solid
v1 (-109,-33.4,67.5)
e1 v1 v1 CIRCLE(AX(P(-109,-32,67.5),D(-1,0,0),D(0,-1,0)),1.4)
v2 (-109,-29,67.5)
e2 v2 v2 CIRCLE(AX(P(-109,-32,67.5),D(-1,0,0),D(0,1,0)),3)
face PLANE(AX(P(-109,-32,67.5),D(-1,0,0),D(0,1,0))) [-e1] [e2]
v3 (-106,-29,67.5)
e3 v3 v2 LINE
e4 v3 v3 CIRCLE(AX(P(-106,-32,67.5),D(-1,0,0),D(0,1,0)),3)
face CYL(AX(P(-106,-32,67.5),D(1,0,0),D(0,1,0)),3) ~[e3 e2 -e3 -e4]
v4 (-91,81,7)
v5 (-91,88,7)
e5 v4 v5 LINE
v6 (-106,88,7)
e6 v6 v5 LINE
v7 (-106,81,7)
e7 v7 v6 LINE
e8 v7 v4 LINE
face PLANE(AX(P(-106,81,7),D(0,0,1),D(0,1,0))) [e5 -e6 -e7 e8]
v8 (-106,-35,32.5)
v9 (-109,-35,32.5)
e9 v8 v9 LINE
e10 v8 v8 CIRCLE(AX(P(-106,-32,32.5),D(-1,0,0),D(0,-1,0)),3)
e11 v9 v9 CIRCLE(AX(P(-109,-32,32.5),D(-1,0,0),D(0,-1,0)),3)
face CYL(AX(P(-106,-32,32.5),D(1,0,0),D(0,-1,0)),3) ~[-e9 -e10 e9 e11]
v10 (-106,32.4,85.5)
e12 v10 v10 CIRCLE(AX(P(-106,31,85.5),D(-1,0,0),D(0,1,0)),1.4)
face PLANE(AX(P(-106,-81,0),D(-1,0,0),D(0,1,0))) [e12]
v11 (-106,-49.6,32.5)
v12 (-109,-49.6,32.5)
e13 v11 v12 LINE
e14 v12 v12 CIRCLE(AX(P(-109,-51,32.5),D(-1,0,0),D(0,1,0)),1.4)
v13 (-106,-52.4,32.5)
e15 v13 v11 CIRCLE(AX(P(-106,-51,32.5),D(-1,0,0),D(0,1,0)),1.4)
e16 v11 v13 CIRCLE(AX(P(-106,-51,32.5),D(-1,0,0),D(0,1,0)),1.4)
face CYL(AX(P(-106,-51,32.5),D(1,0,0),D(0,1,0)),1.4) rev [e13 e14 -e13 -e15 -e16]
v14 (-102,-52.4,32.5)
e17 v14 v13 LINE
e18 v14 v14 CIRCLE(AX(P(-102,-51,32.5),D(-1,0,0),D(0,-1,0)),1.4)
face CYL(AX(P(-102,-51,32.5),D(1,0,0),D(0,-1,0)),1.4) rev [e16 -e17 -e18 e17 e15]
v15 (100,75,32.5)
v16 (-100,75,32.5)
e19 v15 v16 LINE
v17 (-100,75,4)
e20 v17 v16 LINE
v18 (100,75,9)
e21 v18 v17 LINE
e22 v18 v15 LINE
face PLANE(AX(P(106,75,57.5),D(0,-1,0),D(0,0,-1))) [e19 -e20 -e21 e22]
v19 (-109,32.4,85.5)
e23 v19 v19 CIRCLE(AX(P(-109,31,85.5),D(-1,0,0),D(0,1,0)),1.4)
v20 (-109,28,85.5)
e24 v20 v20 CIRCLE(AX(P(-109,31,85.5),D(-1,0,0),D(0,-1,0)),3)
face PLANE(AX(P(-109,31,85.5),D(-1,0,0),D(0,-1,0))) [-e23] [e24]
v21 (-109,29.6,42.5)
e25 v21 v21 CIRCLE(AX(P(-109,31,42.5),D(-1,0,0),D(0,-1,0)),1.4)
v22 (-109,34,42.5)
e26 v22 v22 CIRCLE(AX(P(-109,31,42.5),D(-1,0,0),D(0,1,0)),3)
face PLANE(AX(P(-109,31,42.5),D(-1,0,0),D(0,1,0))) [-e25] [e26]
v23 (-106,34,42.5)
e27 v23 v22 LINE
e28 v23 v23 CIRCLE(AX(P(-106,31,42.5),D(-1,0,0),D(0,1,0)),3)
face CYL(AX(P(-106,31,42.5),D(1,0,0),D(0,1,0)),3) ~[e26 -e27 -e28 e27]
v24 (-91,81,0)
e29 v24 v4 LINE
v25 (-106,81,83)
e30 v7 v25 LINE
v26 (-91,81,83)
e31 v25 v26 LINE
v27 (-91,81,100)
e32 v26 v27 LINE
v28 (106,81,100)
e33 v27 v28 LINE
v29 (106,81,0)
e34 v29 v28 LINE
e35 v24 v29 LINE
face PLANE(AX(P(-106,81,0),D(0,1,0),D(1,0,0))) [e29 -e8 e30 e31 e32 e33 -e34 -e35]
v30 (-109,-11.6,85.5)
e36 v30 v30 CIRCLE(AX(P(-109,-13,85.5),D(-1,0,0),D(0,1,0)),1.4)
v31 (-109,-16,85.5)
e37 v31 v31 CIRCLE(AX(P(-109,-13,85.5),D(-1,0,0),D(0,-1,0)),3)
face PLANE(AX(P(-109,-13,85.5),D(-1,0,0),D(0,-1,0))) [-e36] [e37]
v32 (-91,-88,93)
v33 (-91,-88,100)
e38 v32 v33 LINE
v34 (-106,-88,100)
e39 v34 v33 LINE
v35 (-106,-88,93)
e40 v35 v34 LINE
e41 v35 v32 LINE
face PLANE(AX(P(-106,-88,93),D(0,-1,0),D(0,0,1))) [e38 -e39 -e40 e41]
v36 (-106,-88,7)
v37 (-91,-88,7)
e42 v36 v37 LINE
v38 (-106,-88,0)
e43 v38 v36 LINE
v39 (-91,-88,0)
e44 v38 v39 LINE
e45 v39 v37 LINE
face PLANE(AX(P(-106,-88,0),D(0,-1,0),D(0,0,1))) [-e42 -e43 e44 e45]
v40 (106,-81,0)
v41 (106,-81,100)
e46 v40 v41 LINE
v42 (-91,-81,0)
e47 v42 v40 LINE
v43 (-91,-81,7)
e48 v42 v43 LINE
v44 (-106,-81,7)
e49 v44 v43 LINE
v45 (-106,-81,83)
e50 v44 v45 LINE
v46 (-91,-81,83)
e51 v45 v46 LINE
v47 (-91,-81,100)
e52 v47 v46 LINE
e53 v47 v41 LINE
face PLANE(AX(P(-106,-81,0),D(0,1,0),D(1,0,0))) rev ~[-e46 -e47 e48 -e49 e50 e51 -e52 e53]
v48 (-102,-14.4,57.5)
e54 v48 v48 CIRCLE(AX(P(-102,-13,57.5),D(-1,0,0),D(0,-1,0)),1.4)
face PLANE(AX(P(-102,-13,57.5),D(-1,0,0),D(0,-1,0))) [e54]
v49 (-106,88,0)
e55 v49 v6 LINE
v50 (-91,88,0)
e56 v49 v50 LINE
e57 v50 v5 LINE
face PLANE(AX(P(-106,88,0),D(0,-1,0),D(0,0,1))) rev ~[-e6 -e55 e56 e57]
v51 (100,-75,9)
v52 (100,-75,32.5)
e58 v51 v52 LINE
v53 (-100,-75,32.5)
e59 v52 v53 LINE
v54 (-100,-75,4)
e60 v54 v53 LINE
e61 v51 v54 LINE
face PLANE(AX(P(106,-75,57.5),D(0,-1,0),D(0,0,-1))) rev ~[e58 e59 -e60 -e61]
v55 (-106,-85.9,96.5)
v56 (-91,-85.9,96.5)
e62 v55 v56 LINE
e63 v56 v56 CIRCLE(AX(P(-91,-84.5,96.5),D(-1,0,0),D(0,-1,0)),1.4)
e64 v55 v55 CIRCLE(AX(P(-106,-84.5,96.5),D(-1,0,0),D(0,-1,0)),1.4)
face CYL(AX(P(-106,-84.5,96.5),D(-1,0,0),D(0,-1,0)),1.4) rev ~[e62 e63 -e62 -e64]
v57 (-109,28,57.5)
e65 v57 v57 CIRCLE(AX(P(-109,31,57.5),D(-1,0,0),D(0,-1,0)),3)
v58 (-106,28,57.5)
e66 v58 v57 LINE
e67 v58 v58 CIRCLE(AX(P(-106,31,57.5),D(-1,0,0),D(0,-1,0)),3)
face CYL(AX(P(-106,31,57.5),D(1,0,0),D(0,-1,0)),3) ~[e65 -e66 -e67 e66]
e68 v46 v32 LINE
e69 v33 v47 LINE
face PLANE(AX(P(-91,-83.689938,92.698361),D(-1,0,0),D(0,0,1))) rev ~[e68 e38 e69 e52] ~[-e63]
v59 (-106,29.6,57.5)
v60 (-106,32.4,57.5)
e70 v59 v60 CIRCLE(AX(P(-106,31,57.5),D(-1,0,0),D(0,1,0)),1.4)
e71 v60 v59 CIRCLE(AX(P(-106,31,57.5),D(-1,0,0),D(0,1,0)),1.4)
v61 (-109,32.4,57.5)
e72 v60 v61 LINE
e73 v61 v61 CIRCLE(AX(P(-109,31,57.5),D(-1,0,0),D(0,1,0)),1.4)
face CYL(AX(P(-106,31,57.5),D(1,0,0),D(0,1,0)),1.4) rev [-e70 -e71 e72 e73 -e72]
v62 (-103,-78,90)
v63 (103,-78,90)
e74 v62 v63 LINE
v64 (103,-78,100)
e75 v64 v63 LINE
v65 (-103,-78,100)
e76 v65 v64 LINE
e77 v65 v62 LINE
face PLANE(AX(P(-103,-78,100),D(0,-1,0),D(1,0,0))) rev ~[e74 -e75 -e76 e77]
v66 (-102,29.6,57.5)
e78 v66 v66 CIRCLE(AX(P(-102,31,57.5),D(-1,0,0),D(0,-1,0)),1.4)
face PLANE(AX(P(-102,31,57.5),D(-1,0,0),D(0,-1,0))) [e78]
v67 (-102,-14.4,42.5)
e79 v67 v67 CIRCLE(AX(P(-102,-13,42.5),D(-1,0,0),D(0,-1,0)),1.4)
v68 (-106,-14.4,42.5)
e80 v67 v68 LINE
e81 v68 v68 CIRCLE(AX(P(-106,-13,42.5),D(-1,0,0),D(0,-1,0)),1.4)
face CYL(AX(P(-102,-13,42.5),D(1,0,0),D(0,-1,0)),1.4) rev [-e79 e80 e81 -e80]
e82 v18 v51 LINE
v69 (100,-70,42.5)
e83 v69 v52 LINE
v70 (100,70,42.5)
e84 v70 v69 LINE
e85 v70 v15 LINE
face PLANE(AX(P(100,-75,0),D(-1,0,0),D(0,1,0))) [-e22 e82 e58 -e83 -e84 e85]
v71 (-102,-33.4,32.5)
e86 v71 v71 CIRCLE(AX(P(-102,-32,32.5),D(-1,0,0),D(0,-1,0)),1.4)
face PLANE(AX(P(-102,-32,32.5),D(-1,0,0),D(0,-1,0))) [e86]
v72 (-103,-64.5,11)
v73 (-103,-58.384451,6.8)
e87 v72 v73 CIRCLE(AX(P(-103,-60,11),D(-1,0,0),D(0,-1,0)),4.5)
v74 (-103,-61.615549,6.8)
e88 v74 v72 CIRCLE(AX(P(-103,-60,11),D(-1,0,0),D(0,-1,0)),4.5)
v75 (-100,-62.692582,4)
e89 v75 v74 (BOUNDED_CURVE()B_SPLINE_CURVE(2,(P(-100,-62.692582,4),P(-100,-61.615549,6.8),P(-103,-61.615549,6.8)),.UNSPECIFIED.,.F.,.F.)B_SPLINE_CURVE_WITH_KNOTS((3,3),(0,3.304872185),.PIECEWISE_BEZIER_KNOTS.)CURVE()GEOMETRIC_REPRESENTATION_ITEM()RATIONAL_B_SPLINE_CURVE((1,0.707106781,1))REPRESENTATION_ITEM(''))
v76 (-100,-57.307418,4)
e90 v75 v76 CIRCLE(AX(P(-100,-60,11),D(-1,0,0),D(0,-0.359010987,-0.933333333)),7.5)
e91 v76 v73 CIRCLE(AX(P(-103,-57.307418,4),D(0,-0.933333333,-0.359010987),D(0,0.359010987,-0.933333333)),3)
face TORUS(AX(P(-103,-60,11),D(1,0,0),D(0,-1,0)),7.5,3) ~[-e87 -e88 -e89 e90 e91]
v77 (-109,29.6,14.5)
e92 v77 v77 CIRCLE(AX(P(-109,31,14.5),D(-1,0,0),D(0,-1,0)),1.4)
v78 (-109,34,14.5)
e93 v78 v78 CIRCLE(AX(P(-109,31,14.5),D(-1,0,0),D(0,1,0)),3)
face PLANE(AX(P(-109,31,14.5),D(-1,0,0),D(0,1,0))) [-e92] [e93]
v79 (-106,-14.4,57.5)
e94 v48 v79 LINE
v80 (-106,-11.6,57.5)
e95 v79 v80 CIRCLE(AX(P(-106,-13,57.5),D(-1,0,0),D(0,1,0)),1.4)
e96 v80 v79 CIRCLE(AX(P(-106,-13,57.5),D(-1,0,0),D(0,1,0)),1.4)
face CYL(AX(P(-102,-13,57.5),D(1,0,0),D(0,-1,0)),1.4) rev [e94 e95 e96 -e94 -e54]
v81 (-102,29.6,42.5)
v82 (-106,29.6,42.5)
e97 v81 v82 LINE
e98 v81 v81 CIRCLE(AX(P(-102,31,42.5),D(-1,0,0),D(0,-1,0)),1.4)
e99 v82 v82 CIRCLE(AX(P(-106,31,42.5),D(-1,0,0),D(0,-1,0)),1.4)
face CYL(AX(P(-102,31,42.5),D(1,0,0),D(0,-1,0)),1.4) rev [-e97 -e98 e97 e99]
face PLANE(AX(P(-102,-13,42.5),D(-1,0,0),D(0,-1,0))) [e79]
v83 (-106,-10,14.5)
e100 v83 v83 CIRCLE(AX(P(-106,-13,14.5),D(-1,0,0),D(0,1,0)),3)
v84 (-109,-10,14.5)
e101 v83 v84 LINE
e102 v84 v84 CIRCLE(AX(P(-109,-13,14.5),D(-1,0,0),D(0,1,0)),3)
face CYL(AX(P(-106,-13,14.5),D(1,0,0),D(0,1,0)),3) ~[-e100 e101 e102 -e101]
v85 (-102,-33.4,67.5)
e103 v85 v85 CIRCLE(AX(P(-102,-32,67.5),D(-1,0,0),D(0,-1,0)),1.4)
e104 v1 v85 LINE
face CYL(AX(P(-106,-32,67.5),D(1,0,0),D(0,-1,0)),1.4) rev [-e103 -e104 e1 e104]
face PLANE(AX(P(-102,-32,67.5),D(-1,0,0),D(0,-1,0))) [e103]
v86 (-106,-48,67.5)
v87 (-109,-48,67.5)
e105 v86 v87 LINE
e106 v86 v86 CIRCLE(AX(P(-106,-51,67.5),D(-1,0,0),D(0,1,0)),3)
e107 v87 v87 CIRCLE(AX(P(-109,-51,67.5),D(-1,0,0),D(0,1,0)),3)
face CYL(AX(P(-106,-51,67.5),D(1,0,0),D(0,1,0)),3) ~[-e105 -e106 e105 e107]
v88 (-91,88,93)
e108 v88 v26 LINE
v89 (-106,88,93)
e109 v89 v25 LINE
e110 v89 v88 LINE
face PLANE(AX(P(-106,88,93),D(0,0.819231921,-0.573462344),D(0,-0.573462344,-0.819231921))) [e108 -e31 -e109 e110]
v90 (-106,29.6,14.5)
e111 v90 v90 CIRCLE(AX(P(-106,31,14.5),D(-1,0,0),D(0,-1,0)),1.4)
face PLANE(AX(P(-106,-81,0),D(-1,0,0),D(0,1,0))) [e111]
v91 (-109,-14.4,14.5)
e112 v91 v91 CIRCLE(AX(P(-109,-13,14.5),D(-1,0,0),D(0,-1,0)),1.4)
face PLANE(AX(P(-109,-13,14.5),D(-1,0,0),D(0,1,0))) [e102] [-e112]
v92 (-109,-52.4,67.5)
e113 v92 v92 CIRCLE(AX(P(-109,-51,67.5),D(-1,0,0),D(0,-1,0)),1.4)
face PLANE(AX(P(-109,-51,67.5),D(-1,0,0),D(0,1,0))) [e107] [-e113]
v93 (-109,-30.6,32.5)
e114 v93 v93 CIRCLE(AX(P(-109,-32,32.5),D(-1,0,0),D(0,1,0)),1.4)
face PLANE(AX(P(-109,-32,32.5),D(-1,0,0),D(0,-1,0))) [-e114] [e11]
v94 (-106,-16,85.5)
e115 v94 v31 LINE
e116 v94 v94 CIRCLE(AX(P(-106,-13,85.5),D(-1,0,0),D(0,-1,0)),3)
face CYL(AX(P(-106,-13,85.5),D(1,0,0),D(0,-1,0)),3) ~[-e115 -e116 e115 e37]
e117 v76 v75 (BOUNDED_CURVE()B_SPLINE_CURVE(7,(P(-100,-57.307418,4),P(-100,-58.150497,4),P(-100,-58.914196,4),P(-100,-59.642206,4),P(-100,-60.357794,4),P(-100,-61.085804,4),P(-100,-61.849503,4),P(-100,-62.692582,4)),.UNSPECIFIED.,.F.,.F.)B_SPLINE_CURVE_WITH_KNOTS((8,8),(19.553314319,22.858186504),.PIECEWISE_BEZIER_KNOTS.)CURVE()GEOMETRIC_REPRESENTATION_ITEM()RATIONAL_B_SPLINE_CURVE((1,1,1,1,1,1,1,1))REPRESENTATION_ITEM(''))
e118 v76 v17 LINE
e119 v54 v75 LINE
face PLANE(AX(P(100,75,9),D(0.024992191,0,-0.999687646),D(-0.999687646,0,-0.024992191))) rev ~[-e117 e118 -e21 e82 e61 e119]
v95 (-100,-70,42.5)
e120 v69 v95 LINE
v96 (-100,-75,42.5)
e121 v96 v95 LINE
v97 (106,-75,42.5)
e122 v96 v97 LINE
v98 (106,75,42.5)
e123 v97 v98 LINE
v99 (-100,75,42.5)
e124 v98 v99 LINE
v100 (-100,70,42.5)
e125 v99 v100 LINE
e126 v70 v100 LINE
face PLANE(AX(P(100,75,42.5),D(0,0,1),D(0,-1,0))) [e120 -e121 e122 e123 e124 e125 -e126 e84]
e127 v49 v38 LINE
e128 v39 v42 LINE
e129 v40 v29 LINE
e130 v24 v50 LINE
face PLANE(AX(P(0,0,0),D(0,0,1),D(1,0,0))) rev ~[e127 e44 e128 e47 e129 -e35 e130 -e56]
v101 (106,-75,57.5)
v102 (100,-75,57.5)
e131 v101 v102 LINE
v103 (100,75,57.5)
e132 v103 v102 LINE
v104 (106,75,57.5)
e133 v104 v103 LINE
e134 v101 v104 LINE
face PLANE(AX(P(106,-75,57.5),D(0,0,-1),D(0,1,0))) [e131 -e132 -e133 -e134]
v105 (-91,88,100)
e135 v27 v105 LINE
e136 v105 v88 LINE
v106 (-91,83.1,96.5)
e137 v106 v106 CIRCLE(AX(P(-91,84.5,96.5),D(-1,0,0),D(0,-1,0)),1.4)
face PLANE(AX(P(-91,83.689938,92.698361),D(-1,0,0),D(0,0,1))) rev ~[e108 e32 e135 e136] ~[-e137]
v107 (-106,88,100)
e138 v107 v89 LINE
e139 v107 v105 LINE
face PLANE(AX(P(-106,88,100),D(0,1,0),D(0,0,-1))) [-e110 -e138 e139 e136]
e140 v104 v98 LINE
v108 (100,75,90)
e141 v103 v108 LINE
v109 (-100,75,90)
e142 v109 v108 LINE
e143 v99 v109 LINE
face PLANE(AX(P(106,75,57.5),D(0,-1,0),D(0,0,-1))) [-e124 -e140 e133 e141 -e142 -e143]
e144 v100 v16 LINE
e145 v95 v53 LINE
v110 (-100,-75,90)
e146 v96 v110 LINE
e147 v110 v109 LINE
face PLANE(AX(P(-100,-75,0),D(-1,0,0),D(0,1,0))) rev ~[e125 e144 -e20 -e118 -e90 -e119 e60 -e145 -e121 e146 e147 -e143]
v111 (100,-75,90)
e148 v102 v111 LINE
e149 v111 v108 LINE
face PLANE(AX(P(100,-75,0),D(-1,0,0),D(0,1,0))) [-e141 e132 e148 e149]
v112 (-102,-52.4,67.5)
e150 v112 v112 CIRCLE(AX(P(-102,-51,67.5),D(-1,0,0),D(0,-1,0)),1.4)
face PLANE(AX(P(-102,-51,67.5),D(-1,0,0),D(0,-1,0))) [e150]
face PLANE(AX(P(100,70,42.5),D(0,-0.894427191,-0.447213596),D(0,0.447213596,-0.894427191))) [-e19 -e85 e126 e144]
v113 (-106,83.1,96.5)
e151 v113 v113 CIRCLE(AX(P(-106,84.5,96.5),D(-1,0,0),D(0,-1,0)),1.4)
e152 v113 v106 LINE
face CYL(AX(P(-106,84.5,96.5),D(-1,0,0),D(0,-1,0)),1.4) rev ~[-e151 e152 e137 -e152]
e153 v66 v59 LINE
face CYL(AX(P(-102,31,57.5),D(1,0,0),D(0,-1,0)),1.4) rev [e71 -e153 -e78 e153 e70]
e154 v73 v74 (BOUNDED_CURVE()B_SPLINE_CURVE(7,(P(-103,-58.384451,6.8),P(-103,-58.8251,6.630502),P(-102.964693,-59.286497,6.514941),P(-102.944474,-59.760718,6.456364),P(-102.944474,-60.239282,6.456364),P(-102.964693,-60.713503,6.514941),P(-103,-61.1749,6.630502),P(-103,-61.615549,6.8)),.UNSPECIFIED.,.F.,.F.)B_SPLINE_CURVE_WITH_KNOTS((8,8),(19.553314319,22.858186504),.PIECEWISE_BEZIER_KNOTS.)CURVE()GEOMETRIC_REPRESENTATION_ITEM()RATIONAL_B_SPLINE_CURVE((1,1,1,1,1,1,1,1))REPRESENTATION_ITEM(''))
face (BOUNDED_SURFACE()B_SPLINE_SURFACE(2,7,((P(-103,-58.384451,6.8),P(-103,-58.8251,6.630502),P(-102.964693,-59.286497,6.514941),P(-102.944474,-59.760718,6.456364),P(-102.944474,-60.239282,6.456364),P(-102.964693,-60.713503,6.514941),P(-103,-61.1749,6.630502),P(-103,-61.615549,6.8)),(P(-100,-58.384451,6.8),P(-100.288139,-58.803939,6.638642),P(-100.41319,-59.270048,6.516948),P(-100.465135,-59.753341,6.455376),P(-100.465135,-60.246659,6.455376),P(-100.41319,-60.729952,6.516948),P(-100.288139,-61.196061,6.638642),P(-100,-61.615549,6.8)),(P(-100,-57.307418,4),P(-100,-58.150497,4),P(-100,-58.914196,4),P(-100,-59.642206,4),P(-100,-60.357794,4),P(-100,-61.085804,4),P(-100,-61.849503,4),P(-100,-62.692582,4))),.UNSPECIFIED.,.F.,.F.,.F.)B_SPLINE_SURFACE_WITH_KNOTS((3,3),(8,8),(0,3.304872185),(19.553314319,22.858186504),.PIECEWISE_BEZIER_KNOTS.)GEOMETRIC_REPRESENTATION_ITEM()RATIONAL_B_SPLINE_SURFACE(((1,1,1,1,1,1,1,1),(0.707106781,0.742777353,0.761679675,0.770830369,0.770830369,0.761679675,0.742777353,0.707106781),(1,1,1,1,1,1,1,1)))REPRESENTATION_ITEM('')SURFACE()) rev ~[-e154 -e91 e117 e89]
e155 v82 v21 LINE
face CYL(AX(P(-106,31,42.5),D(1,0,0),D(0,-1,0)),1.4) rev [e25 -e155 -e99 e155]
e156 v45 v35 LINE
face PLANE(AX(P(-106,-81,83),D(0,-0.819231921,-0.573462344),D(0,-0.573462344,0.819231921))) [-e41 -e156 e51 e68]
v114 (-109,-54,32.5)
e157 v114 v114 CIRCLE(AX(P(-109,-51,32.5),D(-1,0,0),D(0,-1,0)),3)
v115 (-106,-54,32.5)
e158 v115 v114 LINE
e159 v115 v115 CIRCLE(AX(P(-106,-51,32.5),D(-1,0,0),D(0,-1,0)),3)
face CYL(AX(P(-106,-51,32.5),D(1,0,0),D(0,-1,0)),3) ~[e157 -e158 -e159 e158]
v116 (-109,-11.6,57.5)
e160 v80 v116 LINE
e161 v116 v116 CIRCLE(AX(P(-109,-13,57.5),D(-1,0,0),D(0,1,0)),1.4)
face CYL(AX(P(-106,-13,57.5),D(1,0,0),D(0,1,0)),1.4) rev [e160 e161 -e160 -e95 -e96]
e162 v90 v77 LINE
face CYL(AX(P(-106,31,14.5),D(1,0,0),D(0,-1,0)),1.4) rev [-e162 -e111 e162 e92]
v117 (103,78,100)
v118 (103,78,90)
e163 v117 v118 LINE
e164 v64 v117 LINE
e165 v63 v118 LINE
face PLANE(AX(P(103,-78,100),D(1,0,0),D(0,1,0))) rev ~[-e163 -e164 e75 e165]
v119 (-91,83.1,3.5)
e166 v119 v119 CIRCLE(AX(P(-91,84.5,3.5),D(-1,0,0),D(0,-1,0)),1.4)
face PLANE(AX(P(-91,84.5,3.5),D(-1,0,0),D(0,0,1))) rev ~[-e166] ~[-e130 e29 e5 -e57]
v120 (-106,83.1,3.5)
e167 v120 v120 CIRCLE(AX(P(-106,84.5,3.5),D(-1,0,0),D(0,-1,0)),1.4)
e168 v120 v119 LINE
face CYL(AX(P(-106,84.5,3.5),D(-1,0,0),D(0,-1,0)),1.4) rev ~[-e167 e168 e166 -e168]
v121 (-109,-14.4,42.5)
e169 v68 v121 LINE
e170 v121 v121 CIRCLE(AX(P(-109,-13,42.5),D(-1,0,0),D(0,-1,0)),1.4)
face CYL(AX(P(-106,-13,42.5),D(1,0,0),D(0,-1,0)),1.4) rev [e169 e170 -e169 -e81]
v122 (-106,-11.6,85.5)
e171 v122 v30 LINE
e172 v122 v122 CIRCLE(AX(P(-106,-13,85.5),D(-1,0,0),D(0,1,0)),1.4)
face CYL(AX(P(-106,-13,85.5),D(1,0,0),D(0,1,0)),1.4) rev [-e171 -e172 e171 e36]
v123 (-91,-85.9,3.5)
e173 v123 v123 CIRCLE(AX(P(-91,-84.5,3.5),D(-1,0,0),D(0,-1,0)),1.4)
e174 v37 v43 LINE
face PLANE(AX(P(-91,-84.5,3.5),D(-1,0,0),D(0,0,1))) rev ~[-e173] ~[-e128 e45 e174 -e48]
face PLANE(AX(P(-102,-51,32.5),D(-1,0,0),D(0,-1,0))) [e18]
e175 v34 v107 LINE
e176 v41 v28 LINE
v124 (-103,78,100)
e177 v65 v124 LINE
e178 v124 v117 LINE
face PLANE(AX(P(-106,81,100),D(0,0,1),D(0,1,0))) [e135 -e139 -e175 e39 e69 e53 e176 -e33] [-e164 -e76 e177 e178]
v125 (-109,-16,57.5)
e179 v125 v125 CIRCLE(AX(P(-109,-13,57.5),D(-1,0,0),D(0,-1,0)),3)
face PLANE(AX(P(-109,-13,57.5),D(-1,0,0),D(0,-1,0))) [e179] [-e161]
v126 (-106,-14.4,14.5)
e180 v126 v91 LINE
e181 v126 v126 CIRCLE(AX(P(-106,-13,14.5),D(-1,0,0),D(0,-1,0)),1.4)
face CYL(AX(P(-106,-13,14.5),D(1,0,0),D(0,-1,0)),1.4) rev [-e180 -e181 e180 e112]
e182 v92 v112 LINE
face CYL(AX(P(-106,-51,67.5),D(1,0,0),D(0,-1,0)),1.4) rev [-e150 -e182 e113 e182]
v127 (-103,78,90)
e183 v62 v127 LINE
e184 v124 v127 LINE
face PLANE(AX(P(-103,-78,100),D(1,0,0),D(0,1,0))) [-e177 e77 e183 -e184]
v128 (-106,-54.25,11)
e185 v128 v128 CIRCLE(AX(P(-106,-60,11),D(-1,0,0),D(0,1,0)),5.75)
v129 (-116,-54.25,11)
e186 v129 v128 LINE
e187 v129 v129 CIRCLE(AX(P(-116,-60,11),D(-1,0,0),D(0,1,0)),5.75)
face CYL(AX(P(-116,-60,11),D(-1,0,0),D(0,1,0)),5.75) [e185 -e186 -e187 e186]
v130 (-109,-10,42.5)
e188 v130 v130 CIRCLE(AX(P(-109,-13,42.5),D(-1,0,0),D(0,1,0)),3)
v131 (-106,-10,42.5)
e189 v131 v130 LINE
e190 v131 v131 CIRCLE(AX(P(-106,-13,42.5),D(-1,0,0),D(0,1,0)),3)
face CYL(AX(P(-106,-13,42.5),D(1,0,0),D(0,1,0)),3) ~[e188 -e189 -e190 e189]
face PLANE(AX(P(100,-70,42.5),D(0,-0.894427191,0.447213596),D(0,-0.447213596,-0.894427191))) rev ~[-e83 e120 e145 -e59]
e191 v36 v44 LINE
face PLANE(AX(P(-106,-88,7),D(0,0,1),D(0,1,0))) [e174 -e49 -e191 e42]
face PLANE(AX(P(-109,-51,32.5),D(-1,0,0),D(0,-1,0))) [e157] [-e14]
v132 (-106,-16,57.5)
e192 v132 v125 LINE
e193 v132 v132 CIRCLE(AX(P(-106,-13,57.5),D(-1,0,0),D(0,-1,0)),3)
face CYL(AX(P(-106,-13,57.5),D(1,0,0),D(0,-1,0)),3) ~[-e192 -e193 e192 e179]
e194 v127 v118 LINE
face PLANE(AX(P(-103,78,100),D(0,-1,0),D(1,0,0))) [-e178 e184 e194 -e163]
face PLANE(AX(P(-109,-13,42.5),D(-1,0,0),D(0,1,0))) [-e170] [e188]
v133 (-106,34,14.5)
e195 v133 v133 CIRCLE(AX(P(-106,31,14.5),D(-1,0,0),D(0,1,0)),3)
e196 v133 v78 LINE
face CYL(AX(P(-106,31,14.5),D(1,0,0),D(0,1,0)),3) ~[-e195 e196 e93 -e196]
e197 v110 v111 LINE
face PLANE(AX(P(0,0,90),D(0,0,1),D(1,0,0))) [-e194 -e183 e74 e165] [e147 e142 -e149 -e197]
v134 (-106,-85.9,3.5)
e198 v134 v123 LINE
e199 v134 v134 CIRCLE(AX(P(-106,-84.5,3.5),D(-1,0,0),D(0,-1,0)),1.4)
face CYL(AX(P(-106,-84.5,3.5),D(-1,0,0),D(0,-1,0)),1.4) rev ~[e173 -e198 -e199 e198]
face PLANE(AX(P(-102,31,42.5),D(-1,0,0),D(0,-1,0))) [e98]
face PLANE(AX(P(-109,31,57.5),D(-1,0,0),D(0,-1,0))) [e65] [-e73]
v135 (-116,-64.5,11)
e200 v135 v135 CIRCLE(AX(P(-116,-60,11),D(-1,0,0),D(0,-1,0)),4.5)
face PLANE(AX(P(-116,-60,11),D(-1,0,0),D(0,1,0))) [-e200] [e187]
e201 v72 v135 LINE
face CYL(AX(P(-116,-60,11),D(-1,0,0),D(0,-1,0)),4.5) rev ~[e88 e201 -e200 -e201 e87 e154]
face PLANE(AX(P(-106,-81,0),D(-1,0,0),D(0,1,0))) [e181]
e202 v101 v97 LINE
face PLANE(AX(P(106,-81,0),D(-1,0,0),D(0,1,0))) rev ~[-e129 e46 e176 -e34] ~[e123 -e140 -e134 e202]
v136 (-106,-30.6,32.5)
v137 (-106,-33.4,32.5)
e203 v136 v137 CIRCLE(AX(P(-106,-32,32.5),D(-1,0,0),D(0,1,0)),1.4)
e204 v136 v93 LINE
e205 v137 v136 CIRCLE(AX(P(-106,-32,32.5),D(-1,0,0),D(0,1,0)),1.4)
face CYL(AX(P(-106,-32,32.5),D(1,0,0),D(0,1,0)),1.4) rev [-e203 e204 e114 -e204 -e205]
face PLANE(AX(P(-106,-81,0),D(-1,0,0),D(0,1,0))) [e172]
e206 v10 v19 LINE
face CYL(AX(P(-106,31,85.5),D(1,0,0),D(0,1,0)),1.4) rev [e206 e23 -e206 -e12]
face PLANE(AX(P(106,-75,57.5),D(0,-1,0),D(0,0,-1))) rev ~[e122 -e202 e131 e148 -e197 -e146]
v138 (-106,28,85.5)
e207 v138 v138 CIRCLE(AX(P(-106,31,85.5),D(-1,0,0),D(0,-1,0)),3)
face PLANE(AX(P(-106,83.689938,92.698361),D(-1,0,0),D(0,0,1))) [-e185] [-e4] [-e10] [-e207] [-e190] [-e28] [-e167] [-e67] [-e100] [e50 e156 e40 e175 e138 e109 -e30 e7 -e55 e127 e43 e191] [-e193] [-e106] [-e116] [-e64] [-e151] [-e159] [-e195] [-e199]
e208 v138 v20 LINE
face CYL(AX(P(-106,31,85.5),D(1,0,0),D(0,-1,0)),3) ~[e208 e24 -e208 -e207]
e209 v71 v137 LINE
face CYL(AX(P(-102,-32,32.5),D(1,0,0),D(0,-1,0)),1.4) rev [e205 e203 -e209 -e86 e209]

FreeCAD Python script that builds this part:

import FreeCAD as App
import Part
import Sketcher
Q = App.Units.Quantity


def edges_at(feature, points):
    """Names of the edges that pass closest to the given points."""
    edges = feature.Shape.Edges
    near = lambda p: min(range(len(edges)), key=lambda i: edges[i].distToShape(Part.Vertex(*p))[0])
    return sorted({f"Edge{near(p) + 1}" for p in points})

doc = App.newDocument("Part")
body = doc.addObject("PartDesign::Body", "Body")

# Sketch on XY plane
sketch1 = body.newObject("Sketcher::SketchObject", "Sketch")
sketch1.AttachmentSupport = (doc.getObject("XY_Plane"), [""])
sketch1.MapMode = "FlatFace"
sketch1.addGeometry([
    Part.LineSegment(App.Vector(-106, 81, 0), App.Vector(-106, -81, 0)),  # 0
    Part.LineSegment(App.Vector(-106, -81, 0), App.Vector(106, -81, 0)),  # 1
    Part.LineSegment(App.Vector(106, -81, 0), App.Vector(106, 81, 0)),  # 2
    Part.LineSegment(App.Vector(106, 81, 0), App.Vector(-106, 81, 0)),  # 3
    Part.LineSegment(App.Vector(100, -75, 0), App.Vector(-100, -75, 0)),  # 4
    Part.LineSegment(App.Vector(-100, -75, 0), App.Vector(-100, 75, 0)),  # 5
    Part.LineSegment(App.Vector(-100, 75, 0), App.Vector(100, 75, 0)),  # 6
    Part.LineSegment(App.Vector(100, 75, 0), App.Vector(100, -75, 0)),  # 7
], False)
sketch1.addConstraint([
    Sketcher.Constraint("Coincident", 0, 2, 1, 1),
    Sketcher.Constraint("Coincident", 1, 2, 2, 1),
    Sketcher.Constraint("Coincident", 2, 2, 3, 1),
    Sketcher.Constraint("Coincident", 3, 2, 0, 1),
    Sketcher.Constraint("Coincident", 4, 2, 5, 1),
    Sketcher.Constraint("Coincident", 5, 2, 6, 1),
    Sketcher.Constraint("Coincident", 6, 2, 7, 1),
    Sketcher.Constraint("Coincident", 7, 2, 4, 1),
    Sketcher.Constraint("Vertical", 0),
    Sketcher.Constraint("Horizontal", 1),
    Sketcher.Constraint("Vertical", 2),
    Sketcher.Constraint("Horizontal", 3),
    Sketcher.Constraint("Horizontal", 4),
    Sketcher.Constraint("Vertical", 5),
    Sketcher.Constraint("Horizontal", 6),
    Sketcher.Constraint("Vertical", 7),
    Sketcher.Constraint("Symmetric", 0, 2, 2, 2, -1, 1),
    Sketcher.Constraint("Symmetric", 4, 2, 6, 2, -1, 1),
    Sketcher.Constraint("DistanceX", 1, 1, 1, 2, Q("212 mm")),
    Sketcher.Constraint("DistanceX", 4, 2, 4, 1, Q("200 mm")),
    Sketcher.Constraint("DistanceY", 0, 2, 0, 1, Q("162 mm")),
    Sketcher.Constraint("DistanceY", 5, 1, 5, 2, Q("150 mm")),
])
pad1 = body.newObject("PartDesign::Pad", "Pad")
pad1.Profile = sketch1
pad1.Length = 100

# Sketch on XY plane
sketch2 = body.newObject("Sketcher::SketchObject", "Sketch001")
sketch2.AttachmentSupport = (doc.getObject("XY_Plane"), [""])
sketch2.MapMode = "FlatFace"
sketch2.addGeometry([
    Part.LineSegment(App.Vector(-100, 75, 0), App.Vector(-100, -75, 0)),
    Part.LineSegment(App.Vector(-100, -75, 0), App.Vector(100, -75, 0)),
    Part.LineSegment(App.Vector(100, -75, 0), App.Vector(100, 75, 0)),
    Part.LineSegment(App.Vector(100, 75, 0), App.Vector(-100, 75, 0)),
], False)
sketch2.addConstraint([
    Sketcher.Constraint("Coincident", 0, 2, 1, 1),
    Sketcher.Constraint("Coincident", 1, 2, 2, 1),
    Sketcher.Constraint("Coincident", 2, 2, 3, 1),
    Sketcher.Constraint("Coincident", 3, 2, 0, 1),
    Sketcher.Constraint("Vertical", 0),
    Sketcher.Constraint("Horizontal", 1),
    Sketcher.Constraint("Vertical", 2),
    Sketcher.Constraint("Horizontal", 3),
    Sketcher.Constraint("Symmetric", 0, 2, 2, 2, -1, 1),
    Sketcher.Constraint("DistanceX", 1, 1, 1, 2, Q("200 mm")),
    Sketcher.Constraint("DistanceY", 0, 2, 0, 1, Q("150 mm")),
])
pad2 = body.newObject("PartDesign::Pad", "Pad001")
pad2.Profile = sketch2
pad2.Length = 4

# Sketch on XY plane
sketch3 = body.newObject("Sketcher::SketchObject", "Sketch002")
sketch3.AttachmentSupport = (doc.getObject("XY_Plane"), [""])
sketch3.MapMode = "FlatFace"
sketch3.AttachmentOffset = App.Placement(App.Vector(0, 0, 100), App.Rotation())
sketch3.addGeometry([
    Part.LineSegment(App.Vector(-103, 78, 0), App.Vector(-103, -78, 0)),  # 0
    Part.LineSegment(App.Vector(-103, -78, 0), App.Vector(103, -78, 0)),  # 1
    Part.LineSegment(App.Vector(103, -78, 0), App.Vector(103, 78, 0)),  # 2
    Part.LineSegment(App.Vector(103, 78, 0), App.Vector(-103, 78, 0)),  # 3
    Part.LineSegment(App.Vector(100, -75, 0), App.Vector(-100, -75, 0)),  # 4
    Part.LineSegment(App.Vector(-100, -75, 0), App.Vector(-100, 75, 0)),  # 5
    Part.LineSegment(App.Vector(-100, 75, 0), App.Vector(100, 75, 0)),  # 6
    Part.LineSegment(App.Vector(100, 75, 0), App.Vector(100, -75, 0)),  # 7
], False)
sketch3.addConstraint([
    Sketcher.Constraint("Coincident", 0, 2, 1, 1),
    Sketcher.Constraint("Coincident", 1, 2, 2, 1),
    Sketcher.Constraint("Coincident", 2, 2, 3, 1),
    Sketcher.Constraint("Coincident", 3, 2, 0, 1),
    Sketcher.Constraint("Coincident", 4, 2, 5, 1),
    Sketcher.Constraint("Coincident", 5, 2, 6, 1),
    Sketcher.Constraint("Coincident", 6, 2, 7, 1),
    Sketcher.Constraint("Coincident", 7, 2, 4, 1),
    Sketcher.Constraint("Vertical", 0),
    Sketcher.Constraint("Horizontal", 1),
    Sketcher.Constraint("Vertical", 2),
    Sketcher.Constraint("Horizontal", 3),
    Sketcher.Constraint("Horizontal", 4),
    Sketcher.Constraint("Vertical", 5),
    Sketcher.Constraint("Horizontal", 6),
    Sketcher.Constraint("Vertical", 7),
    Sketcher.Constraint("Symmetric", 0, 2, 2, 2, -1, 1),
    Sketcher.Constraint("Symmetric", 4, 2, 6, 2, -1, 1),
    Sketcher.Constraint("DistanceX", 1, 1, 1, 2, Q("206 mm")),
    Sketcher.Constraint("DistanceX", 4, 2, 4, 1, Q("200 mm")),
    Sketcher.Constraint("DistanceY", 0, 2, 0, 1, Q("156 mm")),
    Sketcher.Constraint("DistanceY", 5, 1, 5, 2, Q("150 mm")),
])
pocket1 = body.newObject("PartDesign::Pocket", "Pocket")
pocket1.Profile = sketch3
pocket1.Length = 10

# Sketch on YZ plane
sketch4 = body.newObject("Sketcher::SketchObject", "Sketch003")
sketch4.AttachmentSupport = (doc.getObject("YZ_Plane"), [""])
sketch4.MapMode = "FlatFace"
sketch4.AttachmentOffset = App.Placement(App.Vector(0, 0, 106), App.Rotation())
sketch4.addGeometry([
    Part.LineSegment(App.Vector(75, 58, 0), App.Vector(-75, 58, 0)),
    Part.LineSegment(App.Vector(-75, 58, 0), App.Vector(-75, 42, 0)),
    Part.LineSegment(App.Vector(-75, 42, 0), App.Vector(75, 42, 0)),
    Part.LineSegment(App.Vector(75, 42, 0), App.Vector(75, 58, 0)),
], False)
sketch4.addConstraint([
    Sketcher.Constraint("Coincident", 0, 2, 1, 1),
    Sketcher.Constraint("Coincident", 1, 2, 2, 1),
    Sketcher.Constraint("Coincident", 2, 2, 3, 1),
    Sketcher.Constraint("Coincident", 3, 2, 0, 1),
    Sketcher.Constraint("Horizontal", 0),
    Sketcher.Constraint("Vertical", 1),
    Sketcher.Constraint("Horizontal", 2),
    Sketcher.Constraint("Vertical", 3),
    Sketcher.Constraint("DistanceX", 0, 2, 0, 1, Q("150 mm")),
    Sketcher.Constraint("DistanceY", 1, 2, 1, 1, Q("15 mm")),
    Sketcher.Constraint("DistanceX", 0, 2, -1, 1, Q("75 mm")),
    Sketcher.Constraint("DistanceY", -1, 1, 0, 2, Q("57.5 mm")),
])
pocket2 = body.newObject("PartDesign::Pocket", "Pocket001")
pocket2.Profile = sketch4
pocket2.Length = 200

# Sketch on YZ plane
sketch5 = body.newObject("Sketcher::SketchObject", "Sketch004")
sketch5.AttachmentSupport = (doc.getObject("YZ_Plane"), [""])
sketch5.MapMode = "FlatFace"
sketch5.AttachmentOffset = App.Placement(App.Vector(0, 0, 100), App.Rotation())
sketch5.addGeometry([
    Part.LineSegment(App.Vector(70, 42, 0), App.Vector(75, 42, 0)),  # 0
    Part.LineSegment(App.Vector(75, 42, 0), App.Vector(75, 32, 0)),  # 1
    Part.LineSegment(App.Vector(75, 32, 0), App.Vector(70, 42, 0)),  # 2
    Part.LineSegment(App.Vector(-75, 32, 0), App.Vector(-75, 42, 0)),  # 3
    Part.LineSegment(App.Vector(-75, 42, 0), App.Vector(-70, 42, 0)),  # 4
    Part.LineSegment(App.Vector(-70, 42, 0), App.Vector(-75, 32, 0)),  # 5
], False)
sketch5.addConstraint([
    Sketcher.Constraint("Coincident", 0, 2, 1, 1),
    Sketcher.Constraint("Coincident", 1, 2, 2, 1),
    Sketcher.Constraint("Coincident", 2, 2, 0, 1),
    Sketcher.Constraint("Coincident", 3, 2, 4, 1),
    Sketcher.Constraint("Coincident", 4, 2, 5, 1),
    Sketcher.Constraint("Coincident", 5, 2, 3, 1),
    Sketcher.Constraint("Horizontal", 0),
    Sketcher.Constraint("Vertical", 1),
    Sketcher.Constraint("Vertical", 3),
    Sketcher.Constraint("Horizontal", 4),
    Sketcher.Constraint("Symmetric", 0, 2, 3, 2, -2),
    Sketcher.Constraint("Horizontal", 1, 2, 5, 2),
    Sketcher.Constraint("Equal", 0, 4),
    Sketcher.Constraint("DistanceX", 0, 1, 0, 2, Q("5 mm")),
    Sketcher.Constraint("DistanceY", 1, 2, 1, 1, Q("10 mm")),
    Sketcher.Constraint("DistanceX", -1, 1, 0, 2, Q("75 mm")),
    Sketcher.Constraint("DistanceY", -1, 1, 0, 2, Q("42.5 mm")),
])
pad3 = body.newObject("PartDesign::Pad", "Pad002")
pad3.Profile = sketch5
pad3.Length = 200
pad3.Reversed = True

# Sketch on XZ plane
sketch6 = body.newObject("Sketcher::SketchObject", "Sketch005")
sketch6.AttachmentSupport = (doc.getObject("XZ_Plane"), [""])
sketch6.MapMode = "FlatFace"
sketch6.AttachmentOffset = App.Placement(App.Vector(0, 0, -75), App.Rotation())
sketch6.addGeometry([
    Part.LineSegment(App.Vector(100, 9, 0), App.Vector(-100, 4, 0)),
    Part.LineSegment(App.Vector(-100, 4, 0), App.Vector(100, 4, 0)),
    Part.LineSegment(App.Vector(100, 4, 0), App.Vector(100, 9, 0)),
], False)
sketch6.addConstraint([
    Sketcher.Constraint("Coincident", 0, 2, 1, 1),
    Sketcher.Constraint("Coincident", 1, 2, 2, 1),
    Sketcher.Constraint("Coincident", 2, 2, 0, 1),
    Sketcher.Constraint("Horizontal", 1),
    Sketcher.Constraint("Vertical", 2),
    Sketcher.Constraint("DistanceX", 1, 1, 1, 2, Q("200 mm")),
    Sketcher.Constraint("DistanceY", 2, 1, 2, 2, Q("5 mm")),
    Sketcher.Constraint("DistanceX", 0, 2, -1, 1, Q("100 mm")),
    Sketcher.Constraint("DistanceY", -1, 1, 0, 2, Q("4 mm")),
])
pad4 = body.newObject("PartDesign::Pad", "Pad003")
pad4.Profile = sketch6
pad4.Length = 150

# Sketch on YZ plane
sketch7 = body.newObject("Sketcher::SketchObject", "Sketch006")
sketch7.AttachmentSupport = (doc.getObject("YZ_Plane"), [""])
sketch7.MapMode = "FlatFace"
sketch7.AttachmentOffset = App.Placement(App.Vector(0, 0, -106), App.Rotation())
sketch7.addGeometry([
    Part.Circle(App.Vector(31, 57.5, 0), App.Vector(0, 0, 1), 3),  # 0
    Part.Circle(App.Vector(31, 57.5, 0), App.Vector(0, 0, 1), 1.4),  # 1
    Part.Circle(App.Vector(31, 42.5, 0), App.Vector(0, 0, 1), 3),  # 2
    Part.Circle(App.Vector(31, 42.5, 0), App.Vector(0, 0, 1), 1.4),  # 3
    Part.Circle(App.Vector(-13, 57.5, 0), App.Vector(0, 0, 1), 3),  # 4
    Part.Circle(App.Vector(-13, 57.5, 0), App.Vector(0, 0, 1), 1.4),  # 5
    Part.Circle(App.Vector(-13, 42.5, 0), App.Vector(0, 0, 1), 3),  # 6
    Part.Circle(App.Vector(-13, 42.5, 0), App.Vector(0, 0, 1), 1.4),  # 7
    Part.Circle(App.Vector(-32, 67.5, 0), App.Vector(0, 0, 1), 3),  # 8
    Part.Circle(App.Vector(-32, 67.5, 0), App.Vector(0, 0, 1), 1.4),  # 9
    Part.Circle(App.Vector(-51, 67.5, 0), App.Vector(0, 0, 1), 3),  # 10
    Part.Circle(App.Vector(-51, 67.5, 0), App.Vector(0, 0, 1), 1.4),  # 11
    Part.Circle(App.Vector(-51, 32.5, 0), App.Vector(0, 0, 1), 3),  # 12
    Part.Circle(App.Vector(-51, 32.5, 0), App.Vector(0, 0, 1), 1.4),  # 13
    Part.Circle(App.Vector(-32, 32.5, 0), App.Vector(0, 0, 1), 3),  # 14
    Part.Circle(App.Vector(-32, 32.5, 0), App.Vector(0, 0, 1), 1.4),  # 15
    Part.Circle(App.Vector(31, 14.5, 0), App.Vector(0, 0, 1), 3),  # 16
    Part.Circle(App.Vector(31, 14.5, 0), App.Vector(0, 0, 1), 1.4),  # 17
    Part.Circle(App.Vector(-13, 14.5, 0), App.Vector(0, 0, 1), 3),  # 18
    Part.Circle(App.Vector(-13, 14.5, 0), App.Vector(0, 0, 1), 1.4),  # 19
    Part.Circle(App.Vector(-13, 85.5, 0), App.Vector(0, 0, 1), 3),  # 20
    Part.Circle(App.Vector(-13, 85.5, 0), App.Vector(0, 0, 1), 1.4),  # 21
    Part.Circle(App.Vector(31, 85.5, 0), App.Vector(0, 0, 1), 3),  # 22
    Part.Circle(App.Vector(31, 85.5, 0), App.Vector(0, 0, 1), 1.4),  # 23
], False)
sketch7.addConstraint([
    Sketcher.Constraint("Coincident", 1, 3, 0, 3),
    Sketcher.Constraint("Coincident", 3, 3, 2, 3),
    Sketcher.Constraint("Coincident", 5, 3, 4, 3),
    Sketcher.Constraint("Coincident", 7, 3, 6, 3),
    Sketcher.Constraint("Coincident", 9, 3, 8, 3),
    Sketcher.Constraint("Coincident", 11, 3, 10, 3),
    Sketcher.Constraint("Coincident", 13, 3, 12, 3),
    Sketcher.Constraint("Coincident", 15, 3, 14, 3),
    Sketcher.Constraint("Coincident", 17, 3, 16, 3),
    Sketcher.Constraint("Coincident", 19, 3, 18, 3),
    Sketcher.Constraint("Coincident", 21, 3, 20, 3),
    Sketcher.Constraint("Coincident", 23, 3, 22, 3),
    Sketcher.Constraint("Equal", 0, 2),
    Sketcher.Constraint("Equal", 1, 3),
    Sketcher.Constraint("Equal", 2, 4),
    Sketcher.Constraint("Equal", 3, 5),
    Sketcher.Constraint("Equal", 4, 6),
    Sketcher.Constraint("Equal", 5, 7),
    Sketcher.Constraint("Equal", 6, 8),
    Sketcher.Constraint("Equal", 7, 9),
    Sketcher.Constraint("Equal", 8, 10),
    Sketcher.Constraint("Equal", 9, 11),
    Sketcher.Constraint("Equal", 10, 12),
    Sketcher.Constraint("Equal", 11, 13),
    Sketcher.Constraint("Equal", 12, 14),
    Sketcher.Constraint("Equal", 13, 15),
    Sketcher.Constraint("Equal", 14, 16),
    Sketcher.Constraint("Equal", 15, 17),
    Sketcher.Constraint("Equal", 16, 18),
    Sketcher.Constraint("Equal", 17, 19),
    Sketcher.Constraint("Equal", 18, 20),
    Sketcher.Constraint("Equal", 19, 21),
    Sketcher.Constraint("Equal", 20, 22),
    Sketcher.Constraint("Equal", 21, 23),
    Sketcher.Constraint("Horizontal", 1, 3, 4, 3),
    Sketcher.Constraint("Horizontal", 3, 3, 6, 3),
    Sketcher.Constraint("Horizontal", 9, 3, 10, 3),
    Sketcher.Constraint("Horizontal", 13, 3, 14, 3),
    Sketcher.Constraint("Horizontal", 17, 3, 18, 3),
    Sketcher.Constraint("Horizontal", 21, 3, 22, 3),
    Sketcher.Constraint("Vertical", 1, 3, 2, 3),
    Sketcher.Constraint("Vertical", 5, 3, 6, 3),
    Sketcher.Constraint("Vertical", 11, 3, 12, 3),
    Sketcher.Constraint("Vertical", 9, 3, 14, 3),
    Sketcher.Constraint("Vertical", 3, 3, 16, 3),
    Sketcher.Constraint("Vertical", 7, 3, 18, 3),
    Sketcher.Constraint("Vertical", 19, 3, 20, 3),
    Sketcher.Constraint("Vertical", 17, 3, 22, 3),
    Sketcher.Constraint("Diameter", 0, Q("6 mm")),
    Sketcher.Constraint("Diameter", 1, Q("2.8 mm")),
    Sketcher.Constraint("DistanceX", -1, 1, 0, 3, Q("31 mm")),
    Sketcher.Constraint("DistanceX", 4, 3, -1, 1, Q("13 mm")),
    Sketcher.Constraint("DistanceX", 8, 3, -1, 1, Q("32 mm")),
    Sketcher.Constraint("DistanceX", 10, 3, -1, 1, Q("51 mm")),
    Sketcher.Constraint("DistanceY", 2, 3, 0, 3, Q("15 mm")),
    Sketcher.Constraint("DistanceY", 4, 3, 8, 3, Q("10 mm")),
    Sketcher.Constraint("DistanceY", 12, 3, 10, 3, Q("35 mm")),
    Sketcher.Constraint("DistanceY", 16, 3, 2, 3, Q("28 mm")),
    Sketcher.Constraint("DistanceY", 8, 3, 20, 3, Q("18 mm")),
    Sketcher.Constraint("DistanceY", -1, 1, 0, 3, Q("57.5 mm")),
])
pad5 = body.newObject("PartDesign::Pad", "Pad004")
pad5.Profile = sketch7
pad5.Length = 3
pad5.Reversed = True

# Sketch on YZ plane
sketch8 = body.newObject("Sketcher::SketchObject", "Sketch007")
sketch8.AttachmentSupport = (doc.getObject("YZ_Plane"), [""])
sketch8.MapMode = "FlatFace"
sketch8.AttachmentOffset = App.Placement(App.Vector(0, 0, -102), App.Rotation())
sketch8.addGeometry([
    Part.Circle(App.Vector(31, 57.5, 0), App.Vector(0, 0, 1), 1.4),  # 0
    Part.Circle(App.Vector(31, 42.5, 0), App.Vector(0, 0, 1), 1.4),  # 1
    Part.Circle(App.Vector(-13, 42.5, 0), App.Vector(0, 0, 1), 1.4),  # 2
    Part.Circle(App.Vector(-13, 57.5, 0), App.Vector(0, 0, 1), 1.4),  # 3
    Part.Circle(App.Vector(-32, 67.5, 0), App.Vector(0, 0, 1), 1.4),  # 4
    Part.Circle(App.Vector(-32, 32.5, 0), App.Vector(0, 0, 1), 1.4),  # 5
    Part.Circle(App.Vector(-51, 32.5, 0), App.Vector(0, 0, 1), 1.4),  # 6
    Part.Circle(App.Vector(-51, 67.5, 0), App.Vector(0, 0, 1), 1.4),  # 7
], False)
sketch8.addConstraint([
    Sketcher.Constraint("Equal", 0, 1),
    Sketcher.Constraint("Equal", 1, 2),
    Sketcher.Constraint("Equal", 2, 3),
    Sketcher.Constraint("Equal", 3, 4),
    Sketcher.Constraint("Equal", 4, 5),
    Sketcher.Constraint("Equal", 5, 6),
    Sketcher.Constraint("Equal", 6, 7),
    Sketcher.Constraint("Horizontal", 1, 3, 2, 3),
    Sketcher.Constraint("Horizontal", 0, 3, 3, 3),
    Sketcher.Constraint("Horizontal", 5, 3, 6, 3),
    Sketcher.Constraint("Horizontal", 4, 3, 7, 3),
    Sketcher.Constraint("Vertical", 0, 3, 1, 3),
    Sketcher.Constraint("Vertical", 2, 3, 3, 3),
    Sketcher.Constraint("Vertical", 4, 3, 5, 3),
    Sketcher.Constraint("Vertical", 6, 3, 7, 3),
    Sketcher.Constraint("Diameter", 0, Q("2.8 mm")),
    Sketcher.Constraint("DistanceX", -1, 1, 0, 3, Q("31 mm")),
    Sketcher.Constraint("DistanceX", 2, 3, -1, 1, Q("13 mm")),
    Sketcher.Constraint("DistanceX", 4, 3, -1, 1, Q("32 mm")),
    Sketcher.Constraint("DistanceX", 6, 3, -1, 1, Q("51 mm")),
    Sketcher.Constraint("DistanceY", 1, 3, 0, 3, Q("15 mm")),
    Sketcher.Constraint("DistanceY", 3, 3, 4, 3, Q("10 mm")),
    Sketcher.Constraint("DistanceY", 5, 3, 2, 3, Q("10 mm")),
    Sketcher.Constraint("DistanceY", -1, 1, 0, 3, Q("57.5 mm")),
])
pocket3 = body.newObject("PartDesign::Pocket", "Pocket002")
pocket3.Profile = sketch8
pocket3.Length = 4

# Sketch on YZ plane
sketch9 = body.newObject("Sketcher::SketchObject", "Sketch008")
sketch9.AttachmentSupport = (doc.getObject("YZ_Plane"), [""])
sketch9.MapMode = "FlatFace"
sketch9.AttachmentOffset = App.Placement(App.Vector(0, 0, -106), App.Rotation())
sketch9.addGeometry(Part.Circle(App.Vector(-60, 11, 0), App.Vector(0, 0, 1), 4.5), False)
sketch9.addConstraint([
    Sketcher.Constraint("Diameter", 0, Q("9 mm")),
    Sketcher.Constraint("DistanceX", 0, 3, -1, 1, Q("60 mm")),
    Sketcher.Constraint("DistanceY", -1, 1, 0, 3, Q("11 mm")),
])
pocket4 = body.newObject("PartDesign::Pocket", "Pocket003")
pocket4.Profile = sketch9
pocket4.Length = 6
pocket4.Reversed = True

# Sketch on YZ plane
sketch10 = body.newObject("Sketcher::SketchObject", "Sketch009")
sketch10.AttachmentSupport = (doc.getObject("YZ_Plane"), [""])
sketch10.MapMode = "FlatFace"
sketch10.AttachmentOffset = App.Placement(App.Vector(0, 0, -116), App.Rotation())
sketch10.addGeometry([
    Part.Circle(App.Vector(-60, 11, 0), App.Vector(0, 0, 1), 5.8),
    Part.Circle(App.Vector(-60, 11, 0), App.Vector(0, 0, 1), 4.5),
], False)
sketch10.addConstraint([
    Sketcher.Constraint("Coincident", 1, 3, 0, 3),
    Sketcher.Constraint("Diameter", 1, Q("9 mm")),
    Sketcher.Constraint("Diameter", 0, Q("11.5 mm")),
    Sketcher.Constraint("DistanceX", 0, 3, -1, 1, Q("60 mm")),
    Sketcher.Constraint("DistanceY", -1, 1, 0, 3, Q("11 mm")),
])
pad6 = body.newObject("PartDesign::Pad", "Pad005")
pad6.Profile = sketch10
pad6.Length = 10
doc.recompute()

fillet = body.newObject("PartDesign::Fillet", "Fillet")
fillet.Base = (pad6, edges_at(pad6, [(-100, -55.5, 11)]))
fillet.Radius = 3

# Sketch on YZ plane
sketch11 = body.newObject("Sketcher::SketchObject", "Sketch010")
sketch11.AttachmentSupport = (doc.getObject("YZ_Plane"), [""])
sketch11.MapMode = "FlatFace"
sketch11.AttachmentOffset = App.Placement(App.Vector(0, 0, -106), App.Rotation())
sketch11.addGeometry([
    Part.LineSegment(App.Vector(88, 93, 0), App.Vector(81, 83, 0)),  # 0
    Part.LineSegment(App.Vector(81, 83, 0), App.Vector(81, 100, 0)),  # 1
    Part.LineSegment(App.Vector(81, 100, 0), App.Vector(88, 100, 0)),  # 2
    Part.LineSegment(App.Vector(88, 100, 0), App.Vector(88, 93, 0)),  # 3
    Part.Circle(App.Vector(84.5, 96.5, 0), App.Vector(0, 0, 1), 1.4),  # 4
    Part.LineSegment(App.Vector(88, 0, 0), App.Vector(81, 0, 0)),  # 5
    Part.LineSegment(App.Vector(81, 0, 0), App.Vector(81, 7, 0)),  # 6
    Part.LineSegment(App.Vector(81, 7, 0), App.Vector(88, 7, 0)),  # 7
    Part.LineSegment(App.Vector(88, 7, 0), App.Vector(88, 0, 0)),  # 8
    Part.Circle(App.Vector(84.5, 3.5, 0), App.Vector(0, 0, 1), 1.4),  # 9
    Part.LineSegment(App.Vector(-81, 100, 0), App.Vector(-81, 83, 0)),  # 10
    Part.LineSegment(App.Vector(-81, 83, 0), App.Vector(-88, 93, 0)),  # 11
    Part.LineSegment(App.Vector(-88, 93, 0), App.Vector(-88, 100, 0)),  # 12
    Part.LineSegment(App.Vector(-88, 100, 0), App.Vector(-81, 100, 0)),  # 13
    Part.Circle(App.Vector(-84.5, 96.5, 0), App.Vector(0, 0, 1), 1.4),  # 14
    Part.LineSegment(App.Vector(-81, 0, 0), App.Vector(-88, 0, 0)),  # 15
    Part.LineSegment(App.Vector(-88, 0, 0), App.Vector(-88, 7, 0)),  # 16
    Part.LineSegment(App.Vector(-88, 7, 0), App.Vector(-81, 7, 0)),  # 17
    Part.LineSegment(App.Vector(-81, 7, 0), App.Vector(-81, 0, 0)),  # 18
    Part.Circle(App.Vector(-84.5, 3.5, 0), App.Vector(0, 0, 1), 1.4),  # 19
], False)
sketch11.addConstraint([
    Sketcher.Constraint("Coincident", 0, 2, 1, 1),
    Sketcher.Constraint("Coincident", 1, 2, 2, 1),
    Sketcher.Constraint("Coincident", 2, 2, 3, 1),
    Sketcher.Constraint("Coincident", 3, 2, 0, 1),
    Sketcher.Constraint("Coincident", 5, 2, 6, 1),
    Sketcher.Constraint("Coincident", 6, 2, 7, 1),
    Sketcher.Constraint("Coincident", 7, 2, 8, 1),
    Sketcher.Constraint("Coincident", 8, 2, 5, 1),
    Sketcher.Constraint("Coincident", 10, 2, 11, 1),
    Sketcher.Constraint("Coincident", 11, 2, 12, 1),
    Sketcher.Constraint("Coincident", 12, 2, 13, 1),
    Sketcher.Constraint("Coincident", 13, 2, 10, 1),
    Sketcher.Constraint("Coincident", 15, 2, 16, 1),
    Sketcher.Constraint("Coincident", 16, 2, 17, 1),
    Sketcher.Constraint("Coincident", 17, 2, 18, 1),
    Sketcher.Constraint("Coincident", 18, 2, 15, 1),
    Sketcher.Constraint("Vertical", 1),
    Sketcher.Constraint("Horizontal", 2),
    Sketcher.Constraint("Vertical", 3),
    Sketcher.Constraint("Horizontal", 5),
    Sketcher.Constraint("Vertical", 6),
    Sketcher.Constraint("Horizontal", 7),
    Sketcher.Constraint("Vertical", 8),
    Sketcher.Constraint("Vertical", 10),
    Sketcher.Constraint("Vertical", 12),
    Sketcher.Constraint("Horizontal", 13),
    Sketcher.Constraint("Horizontal", 15),
    Sketcher.Constraint("Vertical", 16),
    Sketcher.Constraint("Horizontal", 17),
    Sketcher.Constraint("Vertical", 18),
    Sketcher.Constraint("Equal", 4, 9),
    Sketcher.Constraint("Equal", 9, 14),
    Sketcher.Constraint("Equal", 14, 19),
    Sketcher.Constraint("Symmetric", 8, 2, 15, 2, -1, 1),
    Sketcher.Constraint("Symmetric", 4, 3, 14, 3, -2),
    Sketcher.Constraint("Symmetric", 9, 3, 19, 3, -2),
    Sketcher.Constraint("Symmetric", 0, 2, 10, 2, -2),
    Sketcher.Constraint("Symmetric", 3, 2, 11, 2, -2),
    Sketcher.Constraint("Symmetric", 6, 2, 17, 2, -2),
    Sketcher.Constraint("PointOnObject", 5, 2, -1),
    Sketcher.Constraint("Horizontal", 2, 2, 12, 2),
    Sketcher.Constraint("Vertical", 4, 3, 9, 3),
    Sketcher.Constraint("Vertical", 1, 2, 5, 2),
    Sketcher.Constraint("Vertical", 3, 2, 7, 2),
    Sketcher.Constraint("Equal", 17, 3),
    Sketcher.Constraint("Equal", 3, 6),
    Sketcher.Constraint("Diameter", 4, Q("2.8 mm")),
    Sketcher.Constraint("DistanceX", 2, 1, 2, 2, Q("7 mm")),
    Sketcher.Constraint("DistanceY", 1, 1, 1, 2, Q("17 mm")),
    Sketcher.Constraint("DistanceX", -1, 1, 0, 2, Q("81 mm")),
    Sketcher.Constraint("DistanceY", -1, 1, 0, 2, Q("83 mm")),
    Sketcher.Constraint("DistanceY", 9, 3, 4, 3, Q("93 mm")),
    Sketcher.Constraint("DistanceX", 14, 3, 4, 3, Q("169 mm")),
    Sketcher.Constraint("DistanceY", -1, 1, 4, 3, Q("96.5 mm")),
])
pad7 = body.newObject("PartDesign::Pad", "Pad006")
pad7.Profile = sketch11
pad7.Length = 15

doc.recompute()
